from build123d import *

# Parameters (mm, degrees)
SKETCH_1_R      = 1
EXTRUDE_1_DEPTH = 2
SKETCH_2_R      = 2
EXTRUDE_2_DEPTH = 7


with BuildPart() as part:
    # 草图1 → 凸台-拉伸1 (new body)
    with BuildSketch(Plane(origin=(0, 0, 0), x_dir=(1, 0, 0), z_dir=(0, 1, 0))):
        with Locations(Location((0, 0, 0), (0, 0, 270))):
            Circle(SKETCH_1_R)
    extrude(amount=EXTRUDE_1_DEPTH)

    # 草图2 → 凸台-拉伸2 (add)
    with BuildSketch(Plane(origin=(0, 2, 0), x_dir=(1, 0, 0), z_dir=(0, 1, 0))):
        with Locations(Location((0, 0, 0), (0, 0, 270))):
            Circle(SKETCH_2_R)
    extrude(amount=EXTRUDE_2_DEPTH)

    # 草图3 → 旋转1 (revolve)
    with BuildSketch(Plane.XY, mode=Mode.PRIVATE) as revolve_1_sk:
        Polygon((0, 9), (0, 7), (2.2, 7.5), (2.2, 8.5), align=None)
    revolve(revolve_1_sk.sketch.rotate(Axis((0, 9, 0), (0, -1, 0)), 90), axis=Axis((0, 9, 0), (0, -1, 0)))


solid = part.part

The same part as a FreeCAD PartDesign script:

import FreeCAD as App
import Part
import Sketcher

V = App.Vector
Q = App.Units.Quantity

doc = App.newDocument("Part")
body = doc.addObject("PartDesign::Body", "Body")

sketch1 = body.newObject("Sketcher::SketchObject", "Sketch")
sketch1.AttachmentSupport = (doc.getObject("XZ_Plane"), [""])
sketch1.MapMode = "FlatFace"
sketch1.addGeometry(Part.Circle(V(0, 0, 0), V(0, 0, 1), 1), False)
sketch1.addConstraint(Sketcher.Constraint("Coincident", 0, 3, -1, 1))
sketch1.addConstraint(Sketcher.Constraint("Diameter", 0, Q("2 mm")))
pad1 = body.newObject("PartDesign::Pad", "Pad")
pad1.Profile = sketch1
pad1.Length = 2
pad1.Reversed = True

sketch2 = body.newObject("Sketcher::SketchObject", "Sketch001")
sketch2.AttachmentSupport = (doc.getObject("XZ_Plane"), [""])
sketch2.MapMode = "FlatFace"
sketch2.AttachmentOffset = App.Placement(V(0, 0, -2), App.Rotation())
sketch2.addGeometry(Part.Circle(V(0, 0, 0), V(0, 0, 1), 2), False)
sketch2.addConstraint(Sketcher.Constraint("Coincident", 0, 3, -1, 1))
sketch2.addConstraint(Sketcher.Constraint("Diameter", 0, Q("4 mm")))
pad2 = body.newObject("PartDesign::Pad", "Pad001")
pad2.Profile = sketch2
pad2.Length = 7
pad2.Reversed = True

sketch3 = body.newObject("Sketcher::SketchObject", "Sketch002")
sketch3.AttachmentSupport = (doc.getObject("XY_Plane"), [""])
sketch3.MapMode = "FlatFace"
sketch3.addGeometry(Part.LineSegment(V(0, 9, 0), V(0, 7, 0)), False)
sketch3.addGeometry(Part.LineSegment(V(0, 7, 0), V(2.2, 7.5, 0)), False)
sketch3.addGeometry(Part.LineSegment(V(2.2, 7.5, 0), V(2.2, 8.5, 0)), False)
sketch3.addGeometry(Part.LineSegment(V(2.2, 8.5, 0), V(0, 9, 0)), False)
sketch3.addConstraint(Sketcher.Constraint("Coincident", 0, 2, 1, 1))
sketch3.addConstraint(Sketcher.Constraint("Coincident", 1, 2, 2, 1))
sketch3.addConstraint(Sketcher.Constraint("Coincident", 2, 2, 3, 1))
sketch3.addConstraint(Sketcher.Constraint("Coincident", 3, 2, 0, 1))
sketch3.addConstraint(Sketcher.Constraint("Vertical", 0))
sketch3.addConstraint(Sketcher.Constraint("Vertical", 2))
sketch3.addConstraint(Sketcher.Constraint("PointOnObject", 0, 2, -2))
sketch3.addConstraint(Sketcher.Constraint("Equal", 1, 3))
sketch3.addConstraint(Sketcher.Constraint("DistanceY", 0, 2, 0, 1, Q("2 mm")))
sketch3.addConstraint(Sketcher.Constraint("DistanceY", 2, 1, 2, 2, Q("1 mm")))
sketch3.addConstraint(Sketcher.Constraint("DistanceY", -1, 1, 0, 2, Q("7 mm")))
sketch3.addConstraint(Sketcher.Constraint("DistanceX", -1, 1, 1, 2, Q("2.2 mm")))
revolution = body.newObject("PartDesign::Revolution", "Revolution")
revolution.Profile = sketch3
revolution.ReferenceAxis = (sketch3, ["V_Axis"])
revolution.Angle = 360

doc.recompute()
